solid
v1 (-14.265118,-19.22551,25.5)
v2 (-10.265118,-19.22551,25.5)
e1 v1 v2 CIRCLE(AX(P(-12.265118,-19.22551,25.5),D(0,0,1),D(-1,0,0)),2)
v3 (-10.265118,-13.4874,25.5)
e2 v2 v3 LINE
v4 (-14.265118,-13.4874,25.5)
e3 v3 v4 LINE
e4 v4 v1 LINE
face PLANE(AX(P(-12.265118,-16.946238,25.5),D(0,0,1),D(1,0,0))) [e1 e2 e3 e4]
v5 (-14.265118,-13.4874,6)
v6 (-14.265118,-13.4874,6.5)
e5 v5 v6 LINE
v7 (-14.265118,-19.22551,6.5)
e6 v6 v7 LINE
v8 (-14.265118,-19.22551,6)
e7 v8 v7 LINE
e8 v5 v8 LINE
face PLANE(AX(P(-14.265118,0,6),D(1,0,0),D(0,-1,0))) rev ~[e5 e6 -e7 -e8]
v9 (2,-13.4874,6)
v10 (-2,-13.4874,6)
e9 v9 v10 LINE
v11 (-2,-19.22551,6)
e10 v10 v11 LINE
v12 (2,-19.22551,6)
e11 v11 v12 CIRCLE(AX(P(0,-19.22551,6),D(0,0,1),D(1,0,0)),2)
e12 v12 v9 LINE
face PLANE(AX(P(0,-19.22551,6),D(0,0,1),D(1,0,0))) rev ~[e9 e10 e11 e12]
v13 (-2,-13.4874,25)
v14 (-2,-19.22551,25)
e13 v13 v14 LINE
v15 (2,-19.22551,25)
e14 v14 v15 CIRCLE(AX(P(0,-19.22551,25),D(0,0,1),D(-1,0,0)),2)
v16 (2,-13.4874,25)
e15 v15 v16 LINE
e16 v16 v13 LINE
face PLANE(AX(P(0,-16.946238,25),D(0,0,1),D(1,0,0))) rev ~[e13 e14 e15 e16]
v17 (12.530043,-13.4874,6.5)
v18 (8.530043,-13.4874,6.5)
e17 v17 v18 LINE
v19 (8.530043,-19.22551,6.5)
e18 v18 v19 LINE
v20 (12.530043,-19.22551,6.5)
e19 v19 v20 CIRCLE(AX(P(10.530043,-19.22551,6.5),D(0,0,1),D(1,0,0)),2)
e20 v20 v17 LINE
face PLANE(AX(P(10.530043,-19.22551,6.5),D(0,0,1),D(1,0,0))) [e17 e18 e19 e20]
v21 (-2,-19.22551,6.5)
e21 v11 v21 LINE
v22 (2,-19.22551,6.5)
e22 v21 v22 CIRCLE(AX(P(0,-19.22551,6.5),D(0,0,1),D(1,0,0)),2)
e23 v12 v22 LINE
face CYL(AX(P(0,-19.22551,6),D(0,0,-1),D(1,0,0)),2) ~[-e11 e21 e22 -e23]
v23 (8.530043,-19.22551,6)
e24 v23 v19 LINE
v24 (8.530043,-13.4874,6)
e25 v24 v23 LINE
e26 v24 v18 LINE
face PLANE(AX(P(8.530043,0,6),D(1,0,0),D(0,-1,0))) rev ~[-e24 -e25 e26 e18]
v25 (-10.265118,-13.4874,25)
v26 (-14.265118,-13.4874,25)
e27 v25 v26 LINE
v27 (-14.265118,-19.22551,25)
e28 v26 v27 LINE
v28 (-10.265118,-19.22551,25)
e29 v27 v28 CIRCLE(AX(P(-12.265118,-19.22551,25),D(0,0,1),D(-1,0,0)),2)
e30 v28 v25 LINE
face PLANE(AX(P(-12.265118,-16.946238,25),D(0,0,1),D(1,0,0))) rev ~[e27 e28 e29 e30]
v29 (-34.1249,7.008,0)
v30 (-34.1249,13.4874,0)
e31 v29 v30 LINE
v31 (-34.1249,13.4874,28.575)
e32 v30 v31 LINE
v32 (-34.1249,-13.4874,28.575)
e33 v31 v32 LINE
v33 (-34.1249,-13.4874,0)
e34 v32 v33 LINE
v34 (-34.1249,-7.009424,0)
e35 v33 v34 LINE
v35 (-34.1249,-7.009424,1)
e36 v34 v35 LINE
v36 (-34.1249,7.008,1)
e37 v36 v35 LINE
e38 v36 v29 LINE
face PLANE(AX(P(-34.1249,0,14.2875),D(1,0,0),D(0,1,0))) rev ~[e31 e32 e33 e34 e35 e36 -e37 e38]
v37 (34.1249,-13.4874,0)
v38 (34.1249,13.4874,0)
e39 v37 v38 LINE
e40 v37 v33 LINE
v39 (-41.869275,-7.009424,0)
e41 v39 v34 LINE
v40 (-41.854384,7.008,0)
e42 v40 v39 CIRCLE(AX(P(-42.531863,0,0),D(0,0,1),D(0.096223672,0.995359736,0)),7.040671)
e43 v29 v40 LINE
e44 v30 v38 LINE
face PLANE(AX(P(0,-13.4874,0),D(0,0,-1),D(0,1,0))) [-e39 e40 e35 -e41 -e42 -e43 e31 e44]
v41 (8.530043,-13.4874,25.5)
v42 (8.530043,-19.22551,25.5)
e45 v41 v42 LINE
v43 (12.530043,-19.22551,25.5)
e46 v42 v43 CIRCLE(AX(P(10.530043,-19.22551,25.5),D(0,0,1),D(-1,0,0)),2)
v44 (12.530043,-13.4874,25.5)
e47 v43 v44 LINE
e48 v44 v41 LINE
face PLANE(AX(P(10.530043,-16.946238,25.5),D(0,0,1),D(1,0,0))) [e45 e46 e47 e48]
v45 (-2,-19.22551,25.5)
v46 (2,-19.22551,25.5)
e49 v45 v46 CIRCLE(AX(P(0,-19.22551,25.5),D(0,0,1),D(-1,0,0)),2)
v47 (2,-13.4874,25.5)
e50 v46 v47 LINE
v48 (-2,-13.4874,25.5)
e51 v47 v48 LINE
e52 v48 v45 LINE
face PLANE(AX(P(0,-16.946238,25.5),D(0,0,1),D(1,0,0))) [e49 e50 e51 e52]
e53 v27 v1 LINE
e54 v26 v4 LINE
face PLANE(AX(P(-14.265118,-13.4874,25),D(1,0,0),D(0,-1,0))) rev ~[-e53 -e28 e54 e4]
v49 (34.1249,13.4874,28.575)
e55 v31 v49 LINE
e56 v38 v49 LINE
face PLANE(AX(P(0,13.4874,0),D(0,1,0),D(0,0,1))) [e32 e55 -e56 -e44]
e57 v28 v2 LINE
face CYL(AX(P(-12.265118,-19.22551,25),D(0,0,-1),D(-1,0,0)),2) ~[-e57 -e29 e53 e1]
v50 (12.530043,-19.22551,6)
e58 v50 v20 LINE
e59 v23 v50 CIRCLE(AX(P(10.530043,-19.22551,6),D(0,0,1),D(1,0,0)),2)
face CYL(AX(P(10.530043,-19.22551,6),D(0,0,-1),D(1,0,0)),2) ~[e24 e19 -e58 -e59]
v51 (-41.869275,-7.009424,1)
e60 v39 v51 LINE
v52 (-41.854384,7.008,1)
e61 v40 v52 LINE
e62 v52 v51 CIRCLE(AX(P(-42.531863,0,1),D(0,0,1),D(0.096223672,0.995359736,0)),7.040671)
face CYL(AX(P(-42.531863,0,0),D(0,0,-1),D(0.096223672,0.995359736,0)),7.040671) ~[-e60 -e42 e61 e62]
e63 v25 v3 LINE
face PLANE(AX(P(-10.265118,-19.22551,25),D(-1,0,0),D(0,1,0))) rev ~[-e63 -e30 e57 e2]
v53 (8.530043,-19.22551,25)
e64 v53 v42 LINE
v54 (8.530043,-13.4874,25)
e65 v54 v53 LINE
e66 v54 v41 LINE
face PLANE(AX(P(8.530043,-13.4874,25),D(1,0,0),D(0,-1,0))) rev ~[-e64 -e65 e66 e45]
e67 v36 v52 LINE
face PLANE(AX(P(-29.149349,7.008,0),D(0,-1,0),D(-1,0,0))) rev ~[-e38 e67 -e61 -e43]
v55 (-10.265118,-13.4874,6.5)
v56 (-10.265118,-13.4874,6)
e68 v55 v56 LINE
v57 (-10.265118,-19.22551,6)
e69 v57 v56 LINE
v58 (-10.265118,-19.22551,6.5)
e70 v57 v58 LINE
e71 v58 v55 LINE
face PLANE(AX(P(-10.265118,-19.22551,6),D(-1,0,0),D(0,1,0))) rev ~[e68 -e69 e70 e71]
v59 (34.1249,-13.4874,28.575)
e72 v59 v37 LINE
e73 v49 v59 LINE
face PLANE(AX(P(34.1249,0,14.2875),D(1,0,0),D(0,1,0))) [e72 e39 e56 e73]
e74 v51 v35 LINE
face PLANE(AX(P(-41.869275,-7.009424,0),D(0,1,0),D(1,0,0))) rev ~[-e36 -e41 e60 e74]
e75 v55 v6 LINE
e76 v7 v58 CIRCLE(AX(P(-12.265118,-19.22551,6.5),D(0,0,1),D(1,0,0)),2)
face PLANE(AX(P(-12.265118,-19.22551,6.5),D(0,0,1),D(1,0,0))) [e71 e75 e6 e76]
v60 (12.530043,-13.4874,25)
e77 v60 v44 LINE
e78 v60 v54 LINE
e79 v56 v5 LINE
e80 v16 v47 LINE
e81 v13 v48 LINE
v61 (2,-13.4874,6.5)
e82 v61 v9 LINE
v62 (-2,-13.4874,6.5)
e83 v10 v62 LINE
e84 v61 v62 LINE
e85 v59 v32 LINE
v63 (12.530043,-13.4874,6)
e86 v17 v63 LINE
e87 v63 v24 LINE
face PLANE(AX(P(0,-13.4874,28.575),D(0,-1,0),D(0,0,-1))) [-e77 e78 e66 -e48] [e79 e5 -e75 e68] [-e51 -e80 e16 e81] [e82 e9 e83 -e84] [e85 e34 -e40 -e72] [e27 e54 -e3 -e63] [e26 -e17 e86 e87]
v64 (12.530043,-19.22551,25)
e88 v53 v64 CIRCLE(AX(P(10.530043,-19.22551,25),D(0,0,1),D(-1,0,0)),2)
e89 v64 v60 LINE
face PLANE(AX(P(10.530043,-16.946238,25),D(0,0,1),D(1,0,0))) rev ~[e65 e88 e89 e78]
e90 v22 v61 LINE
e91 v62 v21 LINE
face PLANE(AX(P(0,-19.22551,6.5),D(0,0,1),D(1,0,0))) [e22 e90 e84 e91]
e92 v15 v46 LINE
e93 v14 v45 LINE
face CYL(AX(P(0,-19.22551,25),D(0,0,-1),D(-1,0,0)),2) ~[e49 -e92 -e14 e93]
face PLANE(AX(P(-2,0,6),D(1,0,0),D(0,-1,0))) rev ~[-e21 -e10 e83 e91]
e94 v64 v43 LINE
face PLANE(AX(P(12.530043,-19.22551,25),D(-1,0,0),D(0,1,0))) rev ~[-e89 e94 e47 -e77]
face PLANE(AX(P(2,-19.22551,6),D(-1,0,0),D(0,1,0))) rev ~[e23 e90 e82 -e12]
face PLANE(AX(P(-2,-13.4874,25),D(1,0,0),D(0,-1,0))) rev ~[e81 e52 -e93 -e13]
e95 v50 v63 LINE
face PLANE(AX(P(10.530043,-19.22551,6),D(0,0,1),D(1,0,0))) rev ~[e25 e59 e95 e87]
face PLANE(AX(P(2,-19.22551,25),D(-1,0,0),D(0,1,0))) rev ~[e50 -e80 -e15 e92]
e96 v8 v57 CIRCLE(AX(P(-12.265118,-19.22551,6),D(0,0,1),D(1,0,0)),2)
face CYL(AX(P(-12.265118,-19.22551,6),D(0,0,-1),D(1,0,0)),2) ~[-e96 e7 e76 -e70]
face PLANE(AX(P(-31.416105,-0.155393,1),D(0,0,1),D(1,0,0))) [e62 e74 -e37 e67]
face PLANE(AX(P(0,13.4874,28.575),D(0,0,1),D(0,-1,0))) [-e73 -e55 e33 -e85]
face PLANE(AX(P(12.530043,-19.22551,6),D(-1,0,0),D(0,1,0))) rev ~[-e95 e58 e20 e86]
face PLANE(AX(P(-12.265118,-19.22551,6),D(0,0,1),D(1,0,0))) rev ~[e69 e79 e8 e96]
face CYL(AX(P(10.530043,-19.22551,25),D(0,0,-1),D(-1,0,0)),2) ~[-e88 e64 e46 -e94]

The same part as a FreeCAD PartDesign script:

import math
import FreeCAD as App
import Part
import Sketcher
Q = App.Units.Quantity

doc = App.newDocument("Part")
body = doc.addObject("PartDesign::Body", "Body")

sketch1 = body.newObject("Sketcher::SketchObject", "Sketch")
sketch1.AttachmentSupport = (doc.getObject("YZ_Plane"), [""])
sketch1.MapMode = "FlatFace"
sketch1.addGeometry([
    Part.LineSegment(App.Vector(-13, 0, 0), App.Vector(13, 0, 0)),
    Part.LineSegment(App.Vector(13, 0, 0), App.Vector(13, 29, 0)),
    Part.LineSegment(App.Vector(13, 29, 0), App.Vector(-13, 29, 0)),
    Part.LineSegment(App.Vector(-13, 29, 0), App.Vector(-13, 0, 0)),
], False)
sketch1.addConstraint([
    Sketcher.Constraint("Coincident", 0, 2, 1, 1),
    Sketcher.Constraint("Coincident", 1, 2, 2, 1),
    Sketcher.Constraint("Coincident", 2, 2, 3, 1),
    Sketcher.Constraint("Coincident", 3, 2, 0, 1),
    Sketcher.Constraint("Horizontal", 0),
    Sketcher.Constraint("Vertical", 1),
    Sketcher.Constraint("Horizontal", 2),
    Sketcher.Constraint("Vertical", 3),
    Sketcher.Constraint("Symmetric", 0, 2, 3, 2, -1, 1),
    Sketcher.Constraint("DistanceY", 1, 1, 1, 2, Q("28.575 mm")),
    Sketcher.Constraint("DistanceX", 0, 1, 0, 2, Q("26.9748 mm")),
])
pad1 = body.newObject("PartDesign::Pad", "Pad")
pad1.Profile = sketch1
pad1.Length = 68.2498
pad1.Midplane = True

sketch2 = body.newObject("Sketcher::SketchObject", "Sketch001")
sketch2.AttachmentSupport = (doc.getObject("XY_Plane"), [""])
sketch2.MapMode = "FlatFace"
sketch2.AttachmentOffset = App.Placement(App.Vector(0, 0, 6), App.Rotation())
sketch2.addGeometry([
    Part.ArcOfCircle(Part.Circle(App.Vector(0, -19.2, 0), App.Vector(0, 0, 1), 2), math.radians(180), math.radians(360)),
    Part.LineSegment(App.Vector(2, -19.2, 0), App.Vector(2, 0, 0)),
    Part.LineSegment(App.Vector(2, 0, 0), App.Vector(-2, 0, 0)),
    Part.LineSegment(App.Vector(-2, 0, 0), App.Vector(-2, -19.2, 0)),
    Part.ArcOfCircle(Part.Circle(App.Vector(-12.3, -19.2, 0), App.Vector(0, 0, 1), 2), math.radians(180), math.radians(360)),
    Part.LineSegment(App.Vector(-10.3, -19.2, 0), App.Vector(-10.3, 0, 0)),
    Part.LineSegment(App.Vector(-10.3, 0, 0), App.Vector(-14.3, 0, 0)),
    Part.LineSegment(App.Vector(-14.3, 0, 0), App.Vector(-14.3, -19.2, 0)),
    Part.ArcOfCircle(Part.Circle(App.Vector(10.5, -19.2, 0), App.Vector(0, 0, 1), 2), math.radians(180), math.radians(360)),
    Part.LineSegment(App.Vector(12.5, -19.2, 0), App.Vector(12.5, 0, 0)),
    Part.LineSegment(App.Vector(12.5, 0, 0), App.Vector(8.5, 0, 0)),
    Part.LineSegment(App.Vector(8.5, 0, 0), App.Vector(8.5, -19.2, 0)),
], False)
sketch2.addConstraint([
    Sketcher.Constraint("Tangent", 0, 2, 1, 1),
    Sketcher.Constraint("Coincident", 1, 2, 2, 1),
    Sketcher.Constraint("Coincident", 2, 2, 3, 1),
    Sketcher.Constraint("Tangent", 3, 2, 0, 1),
    Sketcher.Constraint("Tangent", 4, 2, 5, 1),
    Sketcher.Constraint("Coincident", 5, 2, 6, 1),
    Sketcher.Constraint("Coincident", 6, 2, 7, 1),
    Sketcher.Constraint("Tangent", 7, 2, 4, 1),
    Sketcher.Constraint("Tangent", 8, 2, 9, 1),
    Sketcher.Constraint("Coincident", 9, 2, 10, 1),
    Sketcher.Constraint("Coincident", 10, 2, 11, 1),
    Sketcher.Constraint("Tangent", 11, 2, 8, 1),
    Sketcher.Constraint("Vertical", 1),
    Sketcher.Constraint("Horizontal", 2),
    Sketcher.Constraint("Vertical", 3),
    Sketcher.Constraint("Vertical", 5),
    Sketcher.Constraint("Horizontal", 6),
    Sketcher.Constraint("Vertical", 7),
    Sketcher.Constraint("Vertical", 9),
    Sketcher.Constraint("Horizontal", 10),
    Sketcher.Constraint("Vertical", 11),
    Sketcher.Constraint("Equal", 0, 4),
    Sketcher.Constraint("Equal", 4, 8),
    Sketcher.Constraint("Symmetric", 1, 2, 2, 2, -1, 1),
    Sketcher.Constraint("PointOnObject", 5, 2, -1),
    Sketcher.Constraint("PointOnObject", 9, 2, -1),
    Sketcher.Constraint("Horizontal", 0, 3, 4, 3),
    Sketcher.Constraint("Horizontal", 4, 3, 8, 3),
    Sketcher.Constraint("Radius", 0, Q("2 mm")),
    Sketcher.Constraint("DistanceY", 1, 1, 1, 2, Q("19.22551 mm")),
    Sketcher.Constraint("DistanceX", 4, 3, 8, 3, Q("22.795161 mm")),
    Sketcher.Constraint("DistanceX", 6, 2, 1, 2, Q("16.265118 mm")),
])
pad2 = body.newObject("PartDesign::Pad", "Pad001")
pad2.Profile = sketch2
pad2.Length = 0.5

sketch3 = body.newObject("Sketcher::SketchObject", "Sketch002")
sketch3.AttachmentSupport = (doc.getObject("XY_Plane"), [""])
sketch3.MapMode = "FlatFace"
sketch3.AttachmentOffset = App.Placement(App.Vector(0, 0, 25), App.Rotation())
sketch3.addGeometry([
    Part.ArcOfCircle(Part.Circle(App.Vector(10.5, -19.2, 0), App.Vector(0, 0, 1), 2), math.radians(180), math.radians(360)),
    Part.LineSegment(App.Vector(12.5, -19.2, 0), App.Vector(12.5, -13.5, 0)),
    Part.LineSegment(App.Vector(12.5, -13.5, 0), App.Vector(8.5, -13.5, 0)),
    Part.LineSegment(App.Vector(8.5, -13.5, 0), App.Vector(8.5, -19.2, 0)),
    Part.ArcOfCircle(Part.Circle(App.Vector(0, -19.2, 0), App.Vector(0, 0, 1), 2), math.radians(180), math.radians(360)),
    Part.LineSegment(App.Vector(2, -19.2, 0), App.Vector(2, -13.5, 0)),
    Part.LineSegment(App.Vector(2, -13.5, 0), App.Vector(-2, -13.5, 0)),
    Part.LineSegment(App.Vector(-2, -13.5, 0), App.Vector(-2, -19.2, 0)),
    Part.ArcOfCircle(Part.Circle(App.Vector(-12.3, -19.2, 0), App.Vector(0, 0, 1), 2), math.radians(180), math.radians(360)),
    Part.LineSegment(App.Vector(-10.3, -19.2, 0), App.Vector(-10.3, -13.5, 0)),
    Part.LineSegment(App.Vector(-10.3, -13.5, 0), App.Vector(-14.3, -13.5, 0)),
    Part.LineSegment(App.Vector(-14.3, -13.5, 0), App.Vector(-14.3, -19.2, 0)),
], False)
sketch3.addConstraint([
    Sketcher.Constraint("Tangent", 0, 2, 1, 1),
    Sketcher.Constraint("Coincident", 1, 2, 2, 1),
    Sketcher.Constraint("Coincident", 2, 2, 3, 1),
    Sketcher.Constraint("Tangent", 3, 2, 0, 1),
    Sketcher.Constraint("Tangent", 4, 2, 5, 1),
    Sketcher.Constraint("Coincident", 5, 2, 6, 1),
    Sketcher.Constraint("Coincident", 6, 2, 7, 1),
    Sketcher.Constraint("Tangent", 7, 2, 4, 1),
    Sketcher.Constraint("Tangent", 8, 2, 9, 1),
    Sketcher.Constraint("Coincident", 9, 2, 10, 1),
    Sketcher.Constraint("Coincident", 10, 2, 11, 1),
    Sketcher.Constraint("Tangent", 11, 2, 8, 1),
    Sketcher.Constraint("Vertical", 1),
    Sketcher.Constraint("Horizontal", 2),
    Sketcher.Constraint("Vertical", 3),
    Sketcher.Constraint("Vertical", 5),
    Sketcher.Constraint("Horizontal", 6),
    Sketcher.Constraint("Vertical", 7),
    Sketcher.Constraint("Vertical", 9),
    Sketcher.Constraint("Horizontal", 10),
    Sketcher.Constraint("Vertical", 11),
    Sketcher.Constraint("Equal", 0, 4),
    Sketcher.Constraint("Equal", 4, 8),
    Sketcher.Constraint("PointOnObject", 4, 3, -2),
    Sketcher.Constraint("Horizontal", 0, 3, 4, 3),
    Sketcher.Constraint("Horizontal", 4, 3, 8, 3),
    Sketcher.Constraint("Horizontal", 2, 2, 5, 2),
    Sketcher.Constraint("Horizontal", 6, 2, 9, 2),
    Sketcher.Constraint("Radius", 0, Q("2 mm")),
    Sketcher.Constraint("DistanceY", 1, 1, 1, 2, Q("5.73811 mm")),
    Sketcher.Constraint("DistanceY", 1, 2, -1, 1, Q("13.4874 mm")),
    Sketcher.Constraint("DistanceX", 8, 3, 0, 3, Q("22.795161 mm")),
    Sketcher.Constraint("DistanceX", -1, 1, 0, 3, Q("10.530043 mm")),
])
pad3 = body.newObject("PartDesign::Pad", "Pad002")
pad3.Profile = sketch3
pad3.Length = 0.5

sketch4 = body.newObject("Sketcher::SketchObject", "Sketch003")
sketch4.AttachmentSupport = (doc.getObject("XY_Plane"), [""])
sketch4.MapMode = "FlatFace"
sketch4.addGeometry([
    Part.LineSegment(App.Vector(-29, 7, 0), App.Vector(-42, 7, 0)),
    Part.ArcOfCircle(Part.Circle(App.Vector(-43, 0, 0), App.Vector(0, 0, 1), 7), math.radians(84), math.radians(275)),
    Part.LineSegment(App.Vector(-42, -7, 0), App.Vector(-28, -7, 0)),
    Part.LineSegment(App.Vector(-28, -7, 0), App.Vector(-29, 7, 0)),
], False)
sketch4.addConstraint([
    Sketcher.Constraint("Coincident", 0, 2, 1, 1),
    Sketcher.Constraint("Coincident", 1, 2, 2, 1),
    Sketcher.Constraint("Coincident", 2, 2, 3, 1),
    Sketcher.Constraint("Coincident", 3, 2, 0, 1),
    Sketcher.Constraint("Horizontal", 0),
    Sketcher.Constraint("Horizontal", 2),
    Sketcher.Constraint("PointOnObject", 1, 3, -1),
    Sketcher.Constraint("Radius", 1, Q("7.040671 mm")),
    Sketcher.Constraint("DistanceY", -1, 1, 0, 2, Q("7.008 mm")),
    Sketcher.Constraint("DistanceX", 2, 1, 2, 2, Q("13.57778 mm")),
    Sketcher.Constraint("Distance", 3, Q("14.043649 mm")),
    Sketcher.Constraint("DistanceX", 0, 2, 0, 1, Q("12.705035 mm")),
    Sketcher.Constraint("DistanceX", 3, 2, -1, 1, Q("29.149349 mm")),
])
pad4 = body.newObject("PartDesign::Pad", "Pad003")
pad4.Profile = sketch4
pad4.Length = 1

doc.recompute()
